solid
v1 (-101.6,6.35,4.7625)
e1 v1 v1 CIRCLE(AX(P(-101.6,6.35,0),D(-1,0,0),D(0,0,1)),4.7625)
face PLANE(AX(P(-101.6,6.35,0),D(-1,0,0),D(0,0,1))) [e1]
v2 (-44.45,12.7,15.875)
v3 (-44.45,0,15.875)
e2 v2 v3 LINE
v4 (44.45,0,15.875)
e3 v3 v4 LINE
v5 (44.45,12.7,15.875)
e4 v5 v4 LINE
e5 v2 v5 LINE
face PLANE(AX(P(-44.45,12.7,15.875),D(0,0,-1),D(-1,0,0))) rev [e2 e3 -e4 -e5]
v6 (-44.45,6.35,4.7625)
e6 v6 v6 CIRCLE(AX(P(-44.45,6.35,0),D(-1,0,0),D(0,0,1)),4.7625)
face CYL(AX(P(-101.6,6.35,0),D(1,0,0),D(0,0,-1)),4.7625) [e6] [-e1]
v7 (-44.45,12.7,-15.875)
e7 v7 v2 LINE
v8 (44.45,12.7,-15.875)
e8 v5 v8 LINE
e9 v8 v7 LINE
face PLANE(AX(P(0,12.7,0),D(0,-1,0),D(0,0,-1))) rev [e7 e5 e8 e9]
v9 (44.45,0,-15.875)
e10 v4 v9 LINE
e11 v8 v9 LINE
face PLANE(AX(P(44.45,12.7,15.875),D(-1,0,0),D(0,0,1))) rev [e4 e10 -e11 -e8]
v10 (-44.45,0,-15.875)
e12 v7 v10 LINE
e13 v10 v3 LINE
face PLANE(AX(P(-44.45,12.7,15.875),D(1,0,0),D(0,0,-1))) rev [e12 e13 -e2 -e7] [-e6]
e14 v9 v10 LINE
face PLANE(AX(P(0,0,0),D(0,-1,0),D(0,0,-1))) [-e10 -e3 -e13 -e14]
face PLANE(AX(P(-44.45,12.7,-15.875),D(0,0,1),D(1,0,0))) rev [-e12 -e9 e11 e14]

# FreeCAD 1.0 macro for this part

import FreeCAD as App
import Part
import Sketcher
Q = App.Units.Quantity

doc = App.newDocument("Part")
body = doc.addObject("PartDesign::Body", "Body")

sketch1 = doc.addObject("Sketcher::SketchObject", "Sketch")
body.addObject(sketch1)
sketch1.AttachmentSupport = (doc.XZ_Plane, [""])
sketch1.MapMode = "FlatFace"
sketch1.addGeometry([
    Part.LineSegment(App.Vector(-44, -16, 0), App.Vector(-44, 16, 0)),
    Part.LineSegment(App.Vector(-44, 16, 0), App.Vector(44, 16, 0)),
    Part.LineSegment(App.Vector(44, 16, 0), App.Vector(44, -16, 0)),
    Part.LineSegment(App.Vector(44, -16, 0), App.Vector(-44, -16, 0)),
], False)
sketch1.addConstraint([
    Sketcher.Constraint("Coincident", 0, 2, 1, 1),
    Sketcher.Constraint("Coincident", 1, 2, 2, 1),
    Sketcher.Constraint("Coincident", 2, 2, 3, 1),
    Sketcher.Constraint("Coincident", 3, 2, 0, 1),
    Sketcher.Constraint("Vertical", 0),
    Sketcher.Constraint("Horizontal", 1),
    Sketcher.Constraint("Vertical", 2),
    Sketcher.Constraint("Horizontal", 3),
    Sketcher.Constraint("Symmetric", 0, 2, 2, 2, -1, 1),
    Sketcher.Constraint("DistanceX", 1, 1, 1, 2, Q("3.5 in")),
    Sketcher.Constraint("DistanceY", 0, 1, 0, 2, Q("1.25 in")),
])
pad1 = doc.addObject("PartDesign::Pad", "Pad")
body.addObject(pad1)
pad1.Profile = sketch1
pad1.Length = Q("0.5 in")
pad1.Reversed = True

sketch2 = doc.addObject("Sketcher::SketchObject", "Sketch001")
body.addObject(sketch2)
sketch2.AttachmentSupport = (doc.YZ_Plane, [""])
sketch2.MapMode = "FlatFace"
sketch2.AttachmentOffset = App.Placement(App.Vector(0, 0, -1.75 * 25.4), App.Rotation())
sketch2.addGeometry(Part.Circle(App.Vector(6.3, 0, 0), App.Vector(0, 0, 1), 4.8), False)
sketch2.addConstraint([
    Sketcher.Constraint("PointOnObject", 0, 3, -1),
    Sketcher.Constraint("Diameter", 0, Q("0.375 in")),
    Sketcher.Constraint("DistanceX", -1, 1, 0, 3, Q("0.25 in")),
])
pad2 = doc.addObject("PartDesign::Pad", "Pad001")
body.addObject(pad2)
pad2.Profile = sketch2
pad2.Length = Q("2.25 in")
pad2.Reversed = True

doc.recompute()
